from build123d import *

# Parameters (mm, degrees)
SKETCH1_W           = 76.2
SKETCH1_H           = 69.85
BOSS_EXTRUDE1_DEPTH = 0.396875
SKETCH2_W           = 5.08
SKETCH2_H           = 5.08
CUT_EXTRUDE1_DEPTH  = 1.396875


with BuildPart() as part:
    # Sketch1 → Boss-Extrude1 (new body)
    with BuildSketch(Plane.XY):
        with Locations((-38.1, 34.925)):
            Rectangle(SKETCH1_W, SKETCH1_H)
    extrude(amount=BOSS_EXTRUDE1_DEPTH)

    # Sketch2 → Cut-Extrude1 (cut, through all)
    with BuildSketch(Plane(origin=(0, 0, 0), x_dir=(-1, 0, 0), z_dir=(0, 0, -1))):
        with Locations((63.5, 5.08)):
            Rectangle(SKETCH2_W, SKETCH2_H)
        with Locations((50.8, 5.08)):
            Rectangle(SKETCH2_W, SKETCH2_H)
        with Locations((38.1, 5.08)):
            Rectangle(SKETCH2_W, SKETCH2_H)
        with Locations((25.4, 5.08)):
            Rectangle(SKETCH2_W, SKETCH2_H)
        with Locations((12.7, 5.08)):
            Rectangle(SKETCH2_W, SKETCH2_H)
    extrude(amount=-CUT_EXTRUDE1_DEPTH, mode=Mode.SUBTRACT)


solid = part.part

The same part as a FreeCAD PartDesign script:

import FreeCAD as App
import Part
import Sketcher

V = App.Vector
Q = App.Units.Quantity

doc = App.newDocument("Part")
body = doc.addObject("PartDesign::Body", "Body")

# Sketch on XY plane
sketch1 = body.newObject("Sketcher::SketchObject", "Sketch")
sketch1.AttachmentSupport = (doc.getObject("XY_Plane"), [""])
sketch1.MapMode = "FlatFace"
sketch1.addGeometry([
    Part.LineSegment(V(-76.2, 69.85, 0), V(-76.2, 0, 0)),
    Part.LineSegment(V(-76.2, 0, 0), V(0, 0, 0)),
    Part.LineSegment(V(0, 0, 0), V(0, 69.85, 0)),
    Part.LineSegment(V(0, 69.85, 0), V(-76.2, 69.85, 0)),
], False)
sketch1.addConstraint([
    Sketcher.Constraint("Coincident", 0, 2, 1, 1),
    Sketcher.Constraint("Coincident", 1, 2, 2, 1),
    Sketcher.Constraint("Coincident", 2, 2, 3, 1),
    Sketcher.Constraint("Coincident", 3, 2, 0, 1),
    Sketcher.Constraint("Vertical", 0),
    Sketcher.Constraint("Horizontal", 1),
    Sketcher.Constraint("Vertical", 2),
    Sketcher.Constraint("Horizontal", 3),
    Sketcher.Constraint("Coincident", 1, 2, -1, 1),
    Sketcher.Constraint("DistanceX", 1, 1, 1, 2, Q("3 in")),
    Sketcher.Constraint("DistanceY", 0, 2, 0, 1, Q("2.75 in")),
])
pad1 = body.newObject("PartDesign::Pad", "Pad")
pad1.Profile = sketch1
pad1.Length = Q("0.015625 in")

# Sketch on XY plane
sketch2 = body.newObject("Sketcher::SketchObject", "Sketch001")
sketch2.AttachmentSupport = (doc.getObject("XY_Plane"), [""])
sketch2.MapMode = "FlatFace"
sketch2.addGeometry([
    Part.LineSegment(V(-60.96, 7.62, 0), V(-60.96, 2.54, 0)),  # 0
    Part.LineSegment(V(-60.96, 2.54, 0), V(-66.04, 2.54, 0)),  # 1
    Part.LineSegment(V(-66.04, 2.54, 0), V(-66.04, 7.62, 0)),  # 2
    Part.LineSegment(V(-66.04, 7.62, 0), V(-60.96, 7.62, 0)),  # 3
    Part.LineSegment(V(-48.26, 7.62, 0), V(-48.26, 2.54, 0)),  # 4
    Part.LineSegment(V(-48.26, 2.54, 0), V(-53.34, 2.54, 0)),  # 5
    Part.LineSegment(V(-53.34, 2.54, 0), V(-53.34, 7.62, 0)),  # 6
    Part.LineSegment(V(-53.34, 7.62, 0), V(-48.26, 7.62, 0)),  # 7
    Part.LineSegment(V(-35.56, 7.62, 0), V(-35.56, 2.54, 0)),  # 8
    Part.LineSegment(V(-35.56, 2.54, 0), V(-40.64, 2.54, 0)),  # 9
    Part.LineSegment(V(-40.64, 2.54, 0), V(-40.64, 7.62, 0)),  # 10
    Part.LineSegment(V(-40.64, 7.62, 0), V(-35.56, 7.62, 0)),  # 11
    Part.LineSegment(V(-22.86, 7.62, 0), V(-22.86, 2.54, 0)),  # 12
    Part.LineSegment(V(-22.86, 2.54, 0), V(-27.94, 2.54, 0)),  # 13
    Part.LineSegment(V(-27.94, 2.54, 0), V(-27.94, 7.62, 0)),  # 14
    Part.LineSegment(V(-27.94, 7.62, 0), V(-22.86, 7.62, 0)),  # 15
    Part.LineSegment(V(-10.16, 7.62, 0), V(-10.16, 2.54, 0)),  # 16
    Part.LineSegment(V(-10.16, 2.54, 0), V(-15.24, 2.54, 0)),  # 17
    Part.LineSegment(V(-15.24, 2.54, 0), V(-15.24, 7.62, 0)),  # 18
    Part.LineSegment(V(-15.24, 7.62, 0), V(-10.16, 7.62, 0)),  # 19
], False)
sketch2.addConstraint([
    Sketcher.Constraint("Coincident", 0, 2, 1, 1),
    Sketcher.Constraint("Coincident", 1, 2, 2, 1),
    Sketcher.Constraint("Coincident", 2, 2, 3, 1),
    Sketcher.Constraint("Coincident", 3, 2, 0, 1),
    Sketcher.Constraint("Coincident", 4, 2, 5, 1),
    Sketcher.Constraint("Coincident", 5, 2, 6, 1),
    Sketcher.Constraint("Coincident", 6, 2, 7, 1),
    Sketcher.Constraint("Coincident", 7, 2, 4, 1),
    Sketcher.Constraint("Coincident", 8, 2, 9, 1),
    Sketcher.Constraint("Coincident", 9, 2, 10, 1),
    Sketcher.Constraint("Coincident", 10, 2, 11, 1),
    Sketcher.Constraint("Coincident", 11, 2, 8, 1),
    Sketcher.Constraint("Coincident", 12, 2, 13, 1),
    Sketcher.Constraint("Coincident", 13, 2, 14, 1),
    Sketcher.Constraint("Coincident", 14, 2, 15, 1),
    Sketcher.Constraint("Coincident", 15, 2, 12, 1),
    Sketcher.Constraint("Coincident", 16, 2, 17, 1),
    Sketcher.Constraint("Coincident", 17, 2, 18, 1),
    Sketcher.Constraint("Coincident", 18, 2, 19, 1),
    Sketcher.Constraint("Coincident", 19, 2, 16, 1),
    Sketcher.Constraint("Vertical", 0),
    Sketcher.Constraint("Horizontal", 1),
    Sketcher.Constraint("Vertical", 2),
    Sketcher.Constraint("Horizontal", 3),
    Sketcher.Constraint("Vertical", 4),
    Sketcher.Constraint("Horizontal", 5),
    Sketcher.Constraint("Vertical", 6),
    Sketcher.Constraint("Horizontal", 7),
    Sketcher.Constraint("Vertical", 8),
    Sketcher.Constraint("Horizontal", 9),
    Sketcher.Constraint("Vertical", 10),
    Sketcher.Constraint("Horizontal", 11),
    Sketcher.Constraint("Vertical", 12),
    Sketcher.Constraint("Horizontal", 13),
    Sketcher.Constraint("Vertical", 14),
    Sketcher.Constraint("Horizontal", 15),
    Sketcher.Constraint("Vertical", 16),
    Sketcher.Constraint("Horizontal", 17),
    Sketcher.Constraint("Vertical", 18),
    Sketcher.Constraint("Horizontal", 19),
    Sketcher.Constraint("Horizontal", 1, 2, 4, 2),
    Sketcher.Constraint("Horizontal", 3, 2, 6, 2),
    Sketcher.Constraint("Horizontal", 5, 2, 8, 2),
    Sketcher.Constraint("Horizontal", 7, 2, 10, 2),
    Sketcher.Constraint("Horizontal", 9, 2, 12, 2),
    Sketcher.Constraint("Horizontal", 11, 2, 14, 2),
    Sketcher.Constraint("Horizontal", 13, 2, 16, 2),
    Sketcher.Constraint("Horizontal", 15, 2, 18, 2),
    Sketcher.Constraint("Equal", 3, 5),
    Sketcher.Constraint("Equal", 7, 9),
    Sketcher.Constraint("Equal", 11, 13),
    Sketcher.Constraint("Equal", 15, 17),
    Sketcher.Constraint("Equal", 19, 0),
    Sketcher.Constraint("DistanceX", 1, 2, 1, 1, Q("0.2 in")),
    Sketcher.Constraint("DistanceX", 0, 2, 8, 2, Q("1 in")),
    Sketcher.Constraint("DistanceX", 4, 2, 12, 2, Q("1 in")),
    Sketcher.Constraint("DistanceX", 8, 2, 16, 2, Q("1 in")),
    Sketcher.Constraint("DistanceX", 0, 2, -1, 1, Q("2.4 in")),
    Sketcher.Constraint("DistanceY", -1, 1, 0, 2, Q("0.1 in")),
    Sketcher.Constraint("DistanceX", 4, 2, -1, 1, Q("1.9 in")),
])
pocket1 = body.newObject("PartDesign::Pocket", "Pocket")
pocket1.Profile = sketch2
pocket1.Type = "ThroughAll"
pocket1.Reversed = True

doc.recompute()
